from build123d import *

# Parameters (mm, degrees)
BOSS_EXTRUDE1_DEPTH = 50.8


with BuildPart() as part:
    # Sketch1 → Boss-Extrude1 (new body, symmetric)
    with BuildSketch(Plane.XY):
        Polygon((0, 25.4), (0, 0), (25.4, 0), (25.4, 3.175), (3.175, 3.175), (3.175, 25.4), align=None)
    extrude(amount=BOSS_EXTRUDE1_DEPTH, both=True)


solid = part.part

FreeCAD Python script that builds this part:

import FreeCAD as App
import Part
import Sketcher

V = App.Vector
Q = App.Units.Quantity


def add_polygon(sketch, points):
    """Adds a closed chain of lines whose ends are joined by coincident constraints."""
    first, n = sketch.GeometryCount, len(points)
    for a, b in zip(points, points[1:] + points[:1]):
        sketch.addGeometry(Part.LineSegment(App.Vector(*a, 0), App.Vector(*b, 0)), False)
    for i in range(n):
        sketch.addConstraint(Sketcher.Constraint("Coincident", first + i, 2, first + (i + 1) % n, 1))

doc = App.newDocument("Part")
body = doc.addObject("PartDesign::Body", "Body")

# Sketch on XY plane
sketch1 = body.newObject("Sketcher::SketchObject", "Sketch")
sketch1.AttachmentSupport = (doc.getObject("XY_Plane"), [""])
sketch1.MapMode = "FlatFace"
add_polygon(sketch1, [(0, 25.4), (0, 0), (25.4, 0), (25.4, 3.2), (3.2, 3.2), (3.2, 25.4)])  # lines 0-5
sketch1.addConstraint(Sketcher.Constraint("Vertical", 0))
sketch1.addConstraint(Sketcher.Constraint("Horizontal", 1))
sketch1.addConstraint(Sketcher.Constraint("Vertical", 2))
sketch1.addConstraint(Sketcher.Constraint("Horizontal", 3))
sketch1.addConstraint(Sketcher.Constraint("Vertical", 4))
sketch1.addConstraint(Sketcher.Constraint("Horizontal", 5))
sketch1.addConstraint(Sketcher.Constraint("Coincident", 0, 2, -1, 1))
sketch1.addConstraint(Sketcher.Constraint("Equal", 1, 0))
sketch1.addConstraint(Sketcher.Constraint("Equal", 5, 2))
sketch1.addConstraint(Sketcher.Constraint("DistanceX", 1, 1, 1, 2, Q("1 in")))
sketch1.addConstraint(Sketcher.Constraint("DistanceX", 3, 2, 3, 1, Q("0.875 in")))
pad1 = body.newObject("PartDesign::Pad", "Pad")
pad1.Profile = sketch1
pad1.Length = Q("4 in")
pad1.Midplane = True

doc.recompute()
